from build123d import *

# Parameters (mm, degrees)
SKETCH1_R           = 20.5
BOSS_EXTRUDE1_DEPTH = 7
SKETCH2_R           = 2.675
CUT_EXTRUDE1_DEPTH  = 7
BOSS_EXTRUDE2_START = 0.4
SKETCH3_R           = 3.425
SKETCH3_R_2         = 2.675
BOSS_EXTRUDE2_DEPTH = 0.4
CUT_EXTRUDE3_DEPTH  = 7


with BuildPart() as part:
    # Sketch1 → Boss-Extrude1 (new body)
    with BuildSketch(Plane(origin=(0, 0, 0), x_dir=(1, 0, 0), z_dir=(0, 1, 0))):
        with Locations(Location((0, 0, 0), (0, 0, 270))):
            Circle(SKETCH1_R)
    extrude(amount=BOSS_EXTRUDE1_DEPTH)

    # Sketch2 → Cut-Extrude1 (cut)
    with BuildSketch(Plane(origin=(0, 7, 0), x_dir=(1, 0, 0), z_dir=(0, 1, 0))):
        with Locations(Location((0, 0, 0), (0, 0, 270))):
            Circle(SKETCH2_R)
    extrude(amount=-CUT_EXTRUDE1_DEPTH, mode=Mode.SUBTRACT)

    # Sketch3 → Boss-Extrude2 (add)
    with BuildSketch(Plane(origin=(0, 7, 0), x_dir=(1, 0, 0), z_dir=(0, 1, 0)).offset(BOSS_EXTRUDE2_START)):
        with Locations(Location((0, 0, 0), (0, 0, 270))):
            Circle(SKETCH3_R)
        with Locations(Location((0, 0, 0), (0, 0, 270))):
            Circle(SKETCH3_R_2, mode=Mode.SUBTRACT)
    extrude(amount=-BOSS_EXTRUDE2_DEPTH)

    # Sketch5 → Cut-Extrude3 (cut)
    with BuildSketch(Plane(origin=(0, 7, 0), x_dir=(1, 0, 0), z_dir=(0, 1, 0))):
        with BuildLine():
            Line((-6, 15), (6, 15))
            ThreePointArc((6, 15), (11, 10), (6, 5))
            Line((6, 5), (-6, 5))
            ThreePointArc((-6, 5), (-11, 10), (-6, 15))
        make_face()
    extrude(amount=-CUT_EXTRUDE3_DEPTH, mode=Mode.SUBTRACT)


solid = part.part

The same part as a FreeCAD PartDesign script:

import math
import FreeCAD as App
import Part
import Sketcher

V = App.Vector
Q = App.Units.Quantity

doc = App.newDocument("Part")
body = doc.addObject("PartDesign::Body", "Body")

# Sketch on XZ plane
sketch1 = body.newObject("Sketcher::SketchObject", "Sketch")
sketch1.AttachmentSupport = (doc.getObject("XZ_Plane"), [""])
sketch1.MapMode = "FlatFace"
sketch1.addGeometry(Part.Circle(V(0, 0, 0), V(0, 0, 1), 20.5), False)
sketch1.addConstraint(Sketcher.Constraint("Coincident", 0, 3, -1, 1))
sketch1.addConstraint(Sketcher.Constraint("Diameter", 0, Q("41 mm")))
pad1 = body.newObject("PartDesign::Pad", "Pad")
pad1.Profile = sketch1
pad1.Length = 7
pad1.Reversed = True

# Sketch on XZ plane
sketch2 = body.newObject("Sketcher::SketchObject", "Sketch001")
sketch2.AttachmentSupport = (doc.getObject("XZ_Plane"), [""])
sketch2.MapMode = "FlatFace"
sketch2.AttachmentOffset = App.Placement(V(0, 0, -7), App.Rotation())
sketch2.addGeometry(Part.Circle(V(0, 0, 0), V(0, 0, 1), 2.675), False)
sketch2.addConstraint(Sketcher.Constraint("Coincident", 0, 3, -1, 1))
sketch2.addConstraint(Sketcher.Constraint("Diameter", 0, Q("5.35 mm")))
pocket1 = body.newObject("PartDesign::Pocket", "Pocket")
pocket1.Profile = sketch2
pocket1.Length = 7
pocket1.Reversed = True

# Sketch on XZ plane
sketch3 = body.newObject("Sketcher::SketchObject", "Sketch002")
sketch3.AttachmentSupport = (doc.getObject("XZ_Plane"), [""])
sketch3.MapMode = "FlatFace"
sketch3.AttachmentOffset = App.Placement(V(0, 0, -7.4), App.Rotation())
sketch3.addGeometry(Part.Circle(V(0, 0, 0), V(0, 0, 1), 3.425), False)
sketch3.addGeometry(Part.Circle(V(0, 0, 0), V(0, 0, 1), 2.675), False)
sketch3.addConstraint(Sketcher.Constraint("Coincident", 0, 3, -1, 1))
sketch3.addConstraint(Sketcher.Constraint("Coincident", 1, 3, -1, 1))
sketch3.addConstraint(Sketcher.Constraint("Diameter", 0, Q("6.85 mm")))
sketch3.addConstraint(Sketcher.Constraint("Diameter", 1, Q("5.35 mm")))
pad2 = body.newObject("PartDesign::Pad", "Pad001")
pad2.Profile = sketch3
pad2.Length = 0.4

# Sketch on XZ plane
sketch4 = body.newObject("Sketcher::SketchObject", "Sketch003")
sketch4.AttachmentSupport = (doc.getObject("XZ_Plane"), [""])
sketch4.MapMode = "FlatFace"
sketch4.AttachmentOffset = App.Placement(V(0, 0, -7), App.Rotation())
sketch4.addGeometry(Part.LineSegment(V(6, -15, 0), V(-6, -15, 0)), False)
sketch4.addGeometry(Part.ArcOfCircle(Part.Circle(V(-6, -10, 0), V(0, 0, 1), 5), math.radians(90), math.radians(270)), False)
sketch4.addGeometry(Part.LineSegment(V(-6, -5, 0), V(6, -5, 0)), False)
sketch4.addGeometry(Part.ArcOfCircle(Part.Circle(V(6, -10, 0), V(0, 0, 1), 5), math.radians(-90), math.radians(90)), False)
sketch4.addConstraint(Sketcher.Constraint("Tangent", 0, 2, 1, 2))
sketch4.addConstraint(Sketcher.Constraint("Tangent", 1, 1, 2, 1))
sketch4.addConstraint(Sketcher.Constraint("Tangent", 2, 2, 3, 2))
sketch4.addConstraint(Sketcher.Constraint("Tangent", 3, 1, 0, 1))
sketch4.addConstraint(Sketcher.Constraint("Horizontal", 0))
sketch4.addConstraint(Sketcher.Constraint("Horizontal", 2))
sketch4.addConstraint(Sketcher.Constraint("Radius", 1, Q("5 mm")))
sketch4.addConstraint(Sketcher.Constraint("DistanceX", 0, 2, 0, 1, Q("12 mm")))
sketch4.addConstraint(Sketcher.Constraint("DistanceX", 1, 3, -1, 1, Q("6 mm")))
sketch4.addConstraint(Sketcher.Constraint("DistanceY", 1, 3, -1, 1, Q("10 mm")))
pocket2 = body.newObject("PartDesign::Pocket", "Pocket001")
pocket2.Profile = sketch4
pocket2.Length = 7
pocket2.Reversed = True

doc.recompute()
